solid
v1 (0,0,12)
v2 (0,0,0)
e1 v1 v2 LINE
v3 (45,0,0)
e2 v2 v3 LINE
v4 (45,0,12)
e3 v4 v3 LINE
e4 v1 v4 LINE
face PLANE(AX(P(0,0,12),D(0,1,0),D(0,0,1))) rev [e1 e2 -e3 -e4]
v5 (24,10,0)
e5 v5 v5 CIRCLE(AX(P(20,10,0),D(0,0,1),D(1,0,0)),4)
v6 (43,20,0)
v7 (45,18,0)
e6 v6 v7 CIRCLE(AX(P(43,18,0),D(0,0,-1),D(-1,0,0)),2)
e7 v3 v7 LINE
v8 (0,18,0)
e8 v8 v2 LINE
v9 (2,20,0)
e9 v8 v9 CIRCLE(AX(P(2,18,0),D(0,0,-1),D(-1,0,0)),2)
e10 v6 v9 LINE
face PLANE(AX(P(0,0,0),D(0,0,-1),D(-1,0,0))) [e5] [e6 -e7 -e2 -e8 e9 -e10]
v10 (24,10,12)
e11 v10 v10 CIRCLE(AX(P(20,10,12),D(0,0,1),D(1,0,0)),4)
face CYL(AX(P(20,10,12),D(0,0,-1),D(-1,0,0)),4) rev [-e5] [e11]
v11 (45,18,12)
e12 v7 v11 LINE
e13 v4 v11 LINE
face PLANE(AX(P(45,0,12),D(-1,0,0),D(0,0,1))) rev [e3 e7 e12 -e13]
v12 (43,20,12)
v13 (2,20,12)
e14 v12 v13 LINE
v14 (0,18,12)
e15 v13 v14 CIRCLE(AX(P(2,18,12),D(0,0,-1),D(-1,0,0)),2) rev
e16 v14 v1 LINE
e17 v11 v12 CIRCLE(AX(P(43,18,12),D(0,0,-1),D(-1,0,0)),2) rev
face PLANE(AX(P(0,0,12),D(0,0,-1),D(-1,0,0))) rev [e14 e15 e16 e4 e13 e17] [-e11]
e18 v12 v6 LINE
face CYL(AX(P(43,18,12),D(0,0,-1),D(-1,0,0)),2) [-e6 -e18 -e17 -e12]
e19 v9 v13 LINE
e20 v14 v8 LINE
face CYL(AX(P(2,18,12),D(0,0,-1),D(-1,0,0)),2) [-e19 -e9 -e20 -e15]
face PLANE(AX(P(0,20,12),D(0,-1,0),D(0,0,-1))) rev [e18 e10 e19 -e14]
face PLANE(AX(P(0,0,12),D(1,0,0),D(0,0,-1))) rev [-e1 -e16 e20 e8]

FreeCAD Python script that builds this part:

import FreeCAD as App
import Part
import Sketcher
Q = App.Units.Quantity


def edges_at(feature, points):
    """Names of the edges that pass closest to the given points."""
    edges = feature.Shape.Edges
    near = lambda p: min(range(len(edges)), key=lambda i: edges[i].distToShape(Part.Vertex(*p))[0])
    return sorted({f"Edge{near(p) + 1}" for p in points})


def add_polygon(sketch, points):
    """Adds a closed chain of lines whose ends are joined by coincident constraints."""
    first, n = sketch.GeometryCount, len(points)
    for a, b in zip(points, points[1:] + points[:1]):
        sketch.addGeometry(Part.LineSegment(App.Vector(*a, 0), App.Vector(*b, 0)), False)
    for i in range(n):
        sketch.addConstraint(Sketcher.Constraint("Coincident", first + i, 2, first + (i + 1) % n, 1))

doc = App.newDocument("Part")
body = doc.addObject("PartDesign::Body", "Body")

# Sketch on XY plane
sketch1 = doc.addObject("Sketcher::SketchObject", "Sketch")
body.addObject(sketch1)
sketch1.AttachmentSupport = (doc.XY_Plane, [""])
sketch1.MapMode = "FlatFace"
add_polygon(sketch1, [(0, 20), (0, 0), (45, 0), (45, 20)])  # lines 0-3
sketch1.addGeometry(Part.Circle(App.Vector(20, 10, 0), App.Vector(0, 0, 1), 4), False)  # 4
sketch1.addConstraint([
    Sketcher.Constraint("Vertical", 0),
    Sketcher.Constraint("Horizontal", 1),
    Sketcher.Constraint("Vertical", 2),
    Sketcher.Constraint("Horizontal", 3),
    Sketcher.Constraint("Coincident", 0, 2, -1, 1),
    Sketcher.Constraint("Diameter", 4, Q("8 mm")),
    Sketcher.Constraint("DistanceX", 1, 1, 1, 2, Q("45 mm")),
    Sketcher.Constraint("DistanceY", 0, 2, 0, 1, Q("20 mm")),
    Sketcher.Constraint("DistanceX", -1, 1, 4, 3, Q("20 mm")),
    Sketcher.Constraint("DistanceY", -1, 1, 4, 3, Q("10 mm")),
])
pad1 = doc.addObject("PartDesign::Pad", "Pad")
body.addObject(pad1)
pad1.Profile = sketch1
pad1.Length = 12
doc.recompute()

fillet = doc.addObject("PartDesign::Fillet", "Fillet")
body.addObject(fillet)
fillet.Base = (pad1, edges_at(pad1, [(0, 20, 6), (45, 20, 6)]))
fillet.Radius = 2

doc.recompute()
